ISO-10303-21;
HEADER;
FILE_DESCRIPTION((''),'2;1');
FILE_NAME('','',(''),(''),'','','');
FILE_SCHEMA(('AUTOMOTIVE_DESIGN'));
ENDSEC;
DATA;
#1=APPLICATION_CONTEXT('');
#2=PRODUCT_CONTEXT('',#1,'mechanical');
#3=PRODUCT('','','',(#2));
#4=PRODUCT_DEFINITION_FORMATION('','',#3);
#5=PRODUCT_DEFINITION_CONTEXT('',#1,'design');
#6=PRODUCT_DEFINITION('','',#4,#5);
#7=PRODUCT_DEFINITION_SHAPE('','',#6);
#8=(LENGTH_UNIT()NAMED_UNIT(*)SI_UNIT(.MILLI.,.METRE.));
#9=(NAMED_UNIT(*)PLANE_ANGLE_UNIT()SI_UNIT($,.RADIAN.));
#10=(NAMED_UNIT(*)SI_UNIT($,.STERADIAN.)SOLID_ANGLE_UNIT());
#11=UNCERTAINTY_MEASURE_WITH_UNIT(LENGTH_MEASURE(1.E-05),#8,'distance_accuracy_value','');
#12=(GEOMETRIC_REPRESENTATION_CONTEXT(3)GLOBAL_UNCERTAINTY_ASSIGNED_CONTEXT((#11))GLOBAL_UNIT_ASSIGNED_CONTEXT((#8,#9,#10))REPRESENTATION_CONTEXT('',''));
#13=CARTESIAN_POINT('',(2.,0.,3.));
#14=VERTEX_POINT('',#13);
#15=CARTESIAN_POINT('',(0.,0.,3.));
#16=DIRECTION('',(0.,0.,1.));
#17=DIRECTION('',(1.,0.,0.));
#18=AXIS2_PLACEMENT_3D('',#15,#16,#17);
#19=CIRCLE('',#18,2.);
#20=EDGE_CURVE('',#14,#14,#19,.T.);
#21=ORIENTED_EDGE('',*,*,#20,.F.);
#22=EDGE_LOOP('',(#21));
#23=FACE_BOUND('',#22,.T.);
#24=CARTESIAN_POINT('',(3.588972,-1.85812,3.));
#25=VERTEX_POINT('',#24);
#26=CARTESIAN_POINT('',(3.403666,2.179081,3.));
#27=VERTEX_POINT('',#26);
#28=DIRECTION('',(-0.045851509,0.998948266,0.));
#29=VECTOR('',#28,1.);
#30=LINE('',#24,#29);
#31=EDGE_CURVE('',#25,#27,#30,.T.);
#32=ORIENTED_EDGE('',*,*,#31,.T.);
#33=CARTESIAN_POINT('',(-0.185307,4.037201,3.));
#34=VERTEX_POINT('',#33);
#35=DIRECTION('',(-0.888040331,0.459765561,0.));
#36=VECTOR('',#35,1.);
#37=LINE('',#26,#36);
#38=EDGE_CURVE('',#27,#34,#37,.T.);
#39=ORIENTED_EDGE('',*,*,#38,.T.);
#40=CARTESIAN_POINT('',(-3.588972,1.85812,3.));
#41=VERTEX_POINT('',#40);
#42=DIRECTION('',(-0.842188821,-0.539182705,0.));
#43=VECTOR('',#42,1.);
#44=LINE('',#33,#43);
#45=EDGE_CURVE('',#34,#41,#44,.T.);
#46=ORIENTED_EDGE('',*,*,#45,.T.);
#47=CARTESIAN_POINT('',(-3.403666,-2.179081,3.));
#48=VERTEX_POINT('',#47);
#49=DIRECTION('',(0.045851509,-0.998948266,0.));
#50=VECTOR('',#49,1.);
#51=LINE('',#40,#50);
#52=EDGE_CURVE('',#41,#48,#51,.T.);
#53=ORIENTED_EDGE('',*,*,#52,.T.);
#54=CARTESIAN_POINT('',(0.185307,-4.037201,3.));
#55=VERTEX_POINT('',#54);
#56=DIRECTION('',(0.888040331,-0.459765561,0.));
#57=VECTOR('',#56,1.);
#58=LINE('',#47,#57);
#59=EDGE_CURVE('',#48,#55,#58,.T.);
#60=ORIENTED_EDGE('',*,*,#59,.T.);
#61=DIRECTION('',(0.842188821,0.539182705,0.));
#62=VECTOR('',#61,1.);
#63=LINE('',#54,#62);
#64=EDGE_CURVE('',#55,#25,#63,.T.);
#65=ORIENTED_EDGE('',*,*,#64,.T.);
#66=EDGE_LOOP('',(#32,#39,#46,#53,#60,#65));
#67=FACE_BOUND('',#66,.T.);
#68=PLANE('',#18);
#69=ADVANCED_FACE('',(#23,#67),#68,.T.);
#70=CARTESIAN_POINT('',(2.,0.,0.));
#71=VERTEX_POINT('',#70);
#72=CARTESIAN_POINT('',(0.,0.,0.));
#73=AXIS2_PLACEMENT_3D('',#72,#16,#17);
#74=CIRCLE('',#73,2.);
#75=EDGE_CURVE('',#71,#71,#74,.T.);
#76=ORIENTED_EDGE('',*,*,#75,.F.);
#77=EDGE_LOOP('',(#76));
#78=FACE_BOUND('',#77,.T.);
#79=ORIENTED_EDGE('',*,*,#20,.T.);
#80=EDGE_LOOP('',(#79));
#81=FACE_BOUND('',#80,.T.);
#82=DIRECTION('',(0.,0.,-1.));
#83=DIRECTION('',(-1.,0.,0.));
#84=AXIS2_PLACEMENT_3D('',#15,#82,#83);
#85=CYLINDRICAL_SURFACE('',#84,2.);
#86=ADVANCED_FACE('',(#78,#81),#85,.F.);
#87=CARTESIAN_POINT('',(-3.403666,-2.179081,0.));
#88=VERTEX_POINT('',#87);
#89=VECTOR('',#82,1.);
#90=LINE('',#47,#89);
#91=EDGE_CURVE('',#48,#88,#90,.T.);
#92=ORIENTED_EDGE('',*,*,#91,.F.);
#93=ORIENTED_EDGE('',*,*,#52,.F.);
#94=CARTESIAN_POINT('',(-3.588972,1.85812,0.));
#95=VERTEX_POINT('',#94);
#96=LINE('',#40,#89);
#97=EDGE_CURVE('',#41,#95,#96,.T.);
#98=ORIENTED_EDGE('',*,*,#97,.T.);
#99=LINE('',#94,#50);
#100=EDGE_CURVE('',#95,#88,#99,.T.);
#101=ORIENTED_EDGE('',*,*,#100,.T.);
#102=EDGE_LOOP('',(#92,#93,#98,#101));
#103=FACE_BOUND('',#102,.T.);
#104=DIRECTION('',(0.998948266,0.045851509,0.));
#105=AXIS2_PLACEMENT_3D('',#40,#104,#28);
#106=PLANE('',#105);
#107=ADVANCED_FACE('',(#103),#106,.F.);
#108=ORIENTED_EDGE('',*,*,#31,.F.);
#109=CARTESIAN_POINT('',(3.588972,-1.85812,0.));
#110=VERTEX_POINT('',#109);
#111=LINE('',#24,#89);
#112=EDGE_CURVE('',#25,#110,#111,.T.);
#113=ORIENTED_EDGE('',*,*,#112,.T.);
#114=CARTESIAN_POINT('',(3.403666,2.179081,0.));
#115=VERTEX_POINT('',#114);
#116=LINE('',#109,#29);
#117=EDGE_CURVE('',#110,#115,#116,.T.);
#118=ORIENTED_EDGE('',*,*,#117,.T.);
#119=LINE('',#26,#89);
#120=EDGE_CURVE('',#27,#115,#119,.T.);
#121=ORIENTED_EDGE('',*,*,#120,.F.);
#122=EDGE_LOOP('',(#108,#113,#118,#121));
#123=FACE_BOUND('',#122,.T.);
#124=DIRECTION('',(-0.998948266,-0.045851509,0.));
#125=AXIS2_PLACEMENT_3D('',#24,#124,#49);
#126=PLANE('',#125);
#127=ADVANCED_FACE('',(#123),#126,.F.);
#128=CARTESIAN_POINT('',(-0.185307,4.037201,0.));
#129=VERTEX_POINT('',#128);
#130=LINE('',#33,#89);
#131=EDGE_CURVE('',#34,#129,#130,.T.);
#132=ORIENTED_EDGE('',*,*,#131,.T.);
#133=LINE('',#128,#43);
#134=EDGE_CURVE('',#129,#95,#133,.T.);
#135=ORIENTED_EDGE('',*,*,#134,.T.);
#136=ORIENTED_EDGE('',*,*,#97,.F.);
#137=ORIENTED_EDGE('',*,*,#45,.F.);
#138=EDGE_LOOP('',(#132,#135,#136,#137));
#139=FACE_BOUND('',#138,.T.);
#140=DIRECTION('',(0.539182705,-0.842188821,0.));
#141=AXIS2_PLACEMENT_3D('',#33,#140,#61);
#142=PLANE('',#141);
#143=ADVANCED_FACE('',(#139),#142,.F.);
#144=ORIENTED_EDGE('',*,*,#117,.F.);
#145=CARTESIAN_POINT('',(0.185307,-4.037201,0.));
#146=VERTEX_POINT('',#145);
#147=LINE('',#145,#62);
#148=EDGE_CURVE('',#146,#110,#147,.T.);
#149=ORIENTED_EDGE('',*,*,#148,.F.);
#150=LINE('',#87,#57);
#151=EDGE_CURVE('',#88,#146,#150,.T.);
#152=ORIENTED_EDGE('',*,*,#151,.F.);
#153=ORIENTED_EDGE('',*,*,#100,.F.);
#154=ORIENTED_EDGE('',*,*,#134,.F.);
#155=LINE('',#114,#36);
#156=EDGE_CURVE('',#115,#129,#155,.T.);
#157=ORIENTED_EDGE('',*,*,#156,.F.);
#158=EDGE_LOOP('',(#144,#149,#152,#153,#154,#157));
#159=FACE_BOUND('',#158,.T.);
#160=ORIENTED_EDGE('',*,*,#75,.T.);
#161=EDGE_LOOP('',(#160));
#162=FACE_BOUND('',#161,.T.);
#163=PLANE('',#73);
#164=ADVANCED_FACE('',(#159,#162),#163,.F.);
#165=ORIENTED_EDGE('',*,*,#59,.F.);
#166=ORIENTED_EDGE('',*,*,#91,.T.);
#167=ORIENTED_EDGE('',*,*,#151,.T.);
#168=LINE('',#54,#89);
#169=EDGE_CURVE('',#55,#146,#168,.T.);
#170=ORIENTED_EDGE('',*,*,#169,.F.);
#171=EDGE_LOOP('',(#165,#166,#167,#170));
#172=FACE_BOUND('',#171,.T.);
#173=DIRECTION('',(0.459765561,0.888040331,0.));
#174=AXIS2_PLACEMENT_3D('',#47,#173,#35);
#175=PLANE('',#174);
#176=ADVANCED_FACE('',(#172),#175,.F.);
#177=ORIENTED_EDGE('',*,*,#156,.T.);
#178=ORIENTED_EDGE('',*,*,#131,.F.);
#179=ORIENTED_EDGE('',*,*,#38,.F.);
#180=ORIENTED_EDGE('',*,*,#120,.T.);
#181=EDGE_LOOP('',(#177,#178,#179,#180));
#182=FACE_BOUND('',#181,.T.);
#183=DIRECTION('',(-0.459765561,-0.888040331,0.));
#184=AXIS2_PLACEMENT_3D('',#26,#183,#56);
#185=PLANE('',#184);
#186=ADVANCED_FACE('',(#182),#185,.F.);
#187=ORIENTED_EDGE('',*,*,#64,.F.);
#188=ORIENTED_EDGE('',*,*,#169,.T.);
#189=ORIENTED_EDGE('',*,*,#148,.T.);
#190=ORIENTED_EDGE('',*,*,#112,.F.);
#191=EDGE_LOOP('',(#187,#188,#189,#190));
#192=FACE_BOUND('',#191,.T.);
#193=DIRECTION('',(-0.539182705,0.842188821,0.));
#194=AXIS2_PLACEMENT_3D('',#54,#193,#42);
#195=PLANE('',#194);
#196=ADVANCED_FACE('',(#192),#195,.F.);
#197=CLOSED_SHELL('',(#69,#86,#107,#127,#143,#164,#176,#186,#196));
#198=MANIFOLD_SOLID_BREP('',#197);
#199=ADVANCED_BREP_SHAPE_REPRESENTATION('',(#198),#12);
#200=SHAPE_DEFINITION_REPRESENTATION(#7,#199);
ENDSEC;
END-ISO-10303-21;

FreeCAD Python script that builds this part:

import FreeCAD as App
import Part
import Sketcher
Q = App.Units.Quantity


def add_polygon(sketch, points):
    """Adds a closed chain of lines whose ends are joined by coincident constraints."""
    first, n = sketch.GeometryCount, len(points)
    for a, b in zip(points, points[1:] + points[:1]):
        sketch.addGeometry(Part.LineSegment(App.Vector(*a, 0), App.Vector(*b, 0)), False)
    for i in range(n):
        sketch.addConstraint(Sketcher.Constraint("Coincident", first + i, 2, first + (i + 1) % n, 1))

doc = App.newDocument("Part")
body = doc.addObject("PartDesign::Body", "Body")

# Sketch on XY plane
sketch1 = body.newObject("Sketcher::SketchObject", "Sketch")
sketch1.AttachmentSupport = (doc.getObject("XY_Plane"), [""])
sketch1.MapMode = "FlatFace"
add_polygon(sketch1, [(3.6, -1.9), (3.4, 2.2), (-0.2, 4), (-3.6, 1.9), (-3.4, -2.2), (0.2, -4)])  # lines 0-5
sketch1.addGeometry(Part.Circle(App.Vector(0, 0, 0), App.Vector(0, 0, 1), 2), False)  # 6
sketch1.addConstraint([
    Sketcher.Constraint("Coincident", 6, 3, -1, 1),
    Sketcher.Constraint("Symmetric", 0, 2, 3, 2, -1, 1),
    Sketcher.Constraint("Symmetric", 1, 2, 4, 2, -1, 1),
    Sketcher.Constraint("Symmetric", 2, 2, 5, 2, -1, 1),
    Sketcher.Constraint("Equal", 0, 1),
    Sketcher.Constraint("Equal", 1, 2),
    Sketcher.Constraint("Diameter", 6, Q("4 mm")),
    Sketcher.Constraint("DistanceY", -1, 1, 1, 2, Q("4.037201 mm")),
    Sketcher.Constraint("DistanceY", 3, 2, 2, 2, Q("4.037201 mm")),
    Sketcher.Constraint("Distance", 0, Q("4.041452 mm")),
    Sketcher.Constraint("DistanceY", -1, 1, 0, 2, Q("2.179081 mm")),
])
pad1 = body.newObject("PartDesign::Pad", "Pad")
pad1.Profile = sketch1
pad1.Length = 3

doc.recompute()
